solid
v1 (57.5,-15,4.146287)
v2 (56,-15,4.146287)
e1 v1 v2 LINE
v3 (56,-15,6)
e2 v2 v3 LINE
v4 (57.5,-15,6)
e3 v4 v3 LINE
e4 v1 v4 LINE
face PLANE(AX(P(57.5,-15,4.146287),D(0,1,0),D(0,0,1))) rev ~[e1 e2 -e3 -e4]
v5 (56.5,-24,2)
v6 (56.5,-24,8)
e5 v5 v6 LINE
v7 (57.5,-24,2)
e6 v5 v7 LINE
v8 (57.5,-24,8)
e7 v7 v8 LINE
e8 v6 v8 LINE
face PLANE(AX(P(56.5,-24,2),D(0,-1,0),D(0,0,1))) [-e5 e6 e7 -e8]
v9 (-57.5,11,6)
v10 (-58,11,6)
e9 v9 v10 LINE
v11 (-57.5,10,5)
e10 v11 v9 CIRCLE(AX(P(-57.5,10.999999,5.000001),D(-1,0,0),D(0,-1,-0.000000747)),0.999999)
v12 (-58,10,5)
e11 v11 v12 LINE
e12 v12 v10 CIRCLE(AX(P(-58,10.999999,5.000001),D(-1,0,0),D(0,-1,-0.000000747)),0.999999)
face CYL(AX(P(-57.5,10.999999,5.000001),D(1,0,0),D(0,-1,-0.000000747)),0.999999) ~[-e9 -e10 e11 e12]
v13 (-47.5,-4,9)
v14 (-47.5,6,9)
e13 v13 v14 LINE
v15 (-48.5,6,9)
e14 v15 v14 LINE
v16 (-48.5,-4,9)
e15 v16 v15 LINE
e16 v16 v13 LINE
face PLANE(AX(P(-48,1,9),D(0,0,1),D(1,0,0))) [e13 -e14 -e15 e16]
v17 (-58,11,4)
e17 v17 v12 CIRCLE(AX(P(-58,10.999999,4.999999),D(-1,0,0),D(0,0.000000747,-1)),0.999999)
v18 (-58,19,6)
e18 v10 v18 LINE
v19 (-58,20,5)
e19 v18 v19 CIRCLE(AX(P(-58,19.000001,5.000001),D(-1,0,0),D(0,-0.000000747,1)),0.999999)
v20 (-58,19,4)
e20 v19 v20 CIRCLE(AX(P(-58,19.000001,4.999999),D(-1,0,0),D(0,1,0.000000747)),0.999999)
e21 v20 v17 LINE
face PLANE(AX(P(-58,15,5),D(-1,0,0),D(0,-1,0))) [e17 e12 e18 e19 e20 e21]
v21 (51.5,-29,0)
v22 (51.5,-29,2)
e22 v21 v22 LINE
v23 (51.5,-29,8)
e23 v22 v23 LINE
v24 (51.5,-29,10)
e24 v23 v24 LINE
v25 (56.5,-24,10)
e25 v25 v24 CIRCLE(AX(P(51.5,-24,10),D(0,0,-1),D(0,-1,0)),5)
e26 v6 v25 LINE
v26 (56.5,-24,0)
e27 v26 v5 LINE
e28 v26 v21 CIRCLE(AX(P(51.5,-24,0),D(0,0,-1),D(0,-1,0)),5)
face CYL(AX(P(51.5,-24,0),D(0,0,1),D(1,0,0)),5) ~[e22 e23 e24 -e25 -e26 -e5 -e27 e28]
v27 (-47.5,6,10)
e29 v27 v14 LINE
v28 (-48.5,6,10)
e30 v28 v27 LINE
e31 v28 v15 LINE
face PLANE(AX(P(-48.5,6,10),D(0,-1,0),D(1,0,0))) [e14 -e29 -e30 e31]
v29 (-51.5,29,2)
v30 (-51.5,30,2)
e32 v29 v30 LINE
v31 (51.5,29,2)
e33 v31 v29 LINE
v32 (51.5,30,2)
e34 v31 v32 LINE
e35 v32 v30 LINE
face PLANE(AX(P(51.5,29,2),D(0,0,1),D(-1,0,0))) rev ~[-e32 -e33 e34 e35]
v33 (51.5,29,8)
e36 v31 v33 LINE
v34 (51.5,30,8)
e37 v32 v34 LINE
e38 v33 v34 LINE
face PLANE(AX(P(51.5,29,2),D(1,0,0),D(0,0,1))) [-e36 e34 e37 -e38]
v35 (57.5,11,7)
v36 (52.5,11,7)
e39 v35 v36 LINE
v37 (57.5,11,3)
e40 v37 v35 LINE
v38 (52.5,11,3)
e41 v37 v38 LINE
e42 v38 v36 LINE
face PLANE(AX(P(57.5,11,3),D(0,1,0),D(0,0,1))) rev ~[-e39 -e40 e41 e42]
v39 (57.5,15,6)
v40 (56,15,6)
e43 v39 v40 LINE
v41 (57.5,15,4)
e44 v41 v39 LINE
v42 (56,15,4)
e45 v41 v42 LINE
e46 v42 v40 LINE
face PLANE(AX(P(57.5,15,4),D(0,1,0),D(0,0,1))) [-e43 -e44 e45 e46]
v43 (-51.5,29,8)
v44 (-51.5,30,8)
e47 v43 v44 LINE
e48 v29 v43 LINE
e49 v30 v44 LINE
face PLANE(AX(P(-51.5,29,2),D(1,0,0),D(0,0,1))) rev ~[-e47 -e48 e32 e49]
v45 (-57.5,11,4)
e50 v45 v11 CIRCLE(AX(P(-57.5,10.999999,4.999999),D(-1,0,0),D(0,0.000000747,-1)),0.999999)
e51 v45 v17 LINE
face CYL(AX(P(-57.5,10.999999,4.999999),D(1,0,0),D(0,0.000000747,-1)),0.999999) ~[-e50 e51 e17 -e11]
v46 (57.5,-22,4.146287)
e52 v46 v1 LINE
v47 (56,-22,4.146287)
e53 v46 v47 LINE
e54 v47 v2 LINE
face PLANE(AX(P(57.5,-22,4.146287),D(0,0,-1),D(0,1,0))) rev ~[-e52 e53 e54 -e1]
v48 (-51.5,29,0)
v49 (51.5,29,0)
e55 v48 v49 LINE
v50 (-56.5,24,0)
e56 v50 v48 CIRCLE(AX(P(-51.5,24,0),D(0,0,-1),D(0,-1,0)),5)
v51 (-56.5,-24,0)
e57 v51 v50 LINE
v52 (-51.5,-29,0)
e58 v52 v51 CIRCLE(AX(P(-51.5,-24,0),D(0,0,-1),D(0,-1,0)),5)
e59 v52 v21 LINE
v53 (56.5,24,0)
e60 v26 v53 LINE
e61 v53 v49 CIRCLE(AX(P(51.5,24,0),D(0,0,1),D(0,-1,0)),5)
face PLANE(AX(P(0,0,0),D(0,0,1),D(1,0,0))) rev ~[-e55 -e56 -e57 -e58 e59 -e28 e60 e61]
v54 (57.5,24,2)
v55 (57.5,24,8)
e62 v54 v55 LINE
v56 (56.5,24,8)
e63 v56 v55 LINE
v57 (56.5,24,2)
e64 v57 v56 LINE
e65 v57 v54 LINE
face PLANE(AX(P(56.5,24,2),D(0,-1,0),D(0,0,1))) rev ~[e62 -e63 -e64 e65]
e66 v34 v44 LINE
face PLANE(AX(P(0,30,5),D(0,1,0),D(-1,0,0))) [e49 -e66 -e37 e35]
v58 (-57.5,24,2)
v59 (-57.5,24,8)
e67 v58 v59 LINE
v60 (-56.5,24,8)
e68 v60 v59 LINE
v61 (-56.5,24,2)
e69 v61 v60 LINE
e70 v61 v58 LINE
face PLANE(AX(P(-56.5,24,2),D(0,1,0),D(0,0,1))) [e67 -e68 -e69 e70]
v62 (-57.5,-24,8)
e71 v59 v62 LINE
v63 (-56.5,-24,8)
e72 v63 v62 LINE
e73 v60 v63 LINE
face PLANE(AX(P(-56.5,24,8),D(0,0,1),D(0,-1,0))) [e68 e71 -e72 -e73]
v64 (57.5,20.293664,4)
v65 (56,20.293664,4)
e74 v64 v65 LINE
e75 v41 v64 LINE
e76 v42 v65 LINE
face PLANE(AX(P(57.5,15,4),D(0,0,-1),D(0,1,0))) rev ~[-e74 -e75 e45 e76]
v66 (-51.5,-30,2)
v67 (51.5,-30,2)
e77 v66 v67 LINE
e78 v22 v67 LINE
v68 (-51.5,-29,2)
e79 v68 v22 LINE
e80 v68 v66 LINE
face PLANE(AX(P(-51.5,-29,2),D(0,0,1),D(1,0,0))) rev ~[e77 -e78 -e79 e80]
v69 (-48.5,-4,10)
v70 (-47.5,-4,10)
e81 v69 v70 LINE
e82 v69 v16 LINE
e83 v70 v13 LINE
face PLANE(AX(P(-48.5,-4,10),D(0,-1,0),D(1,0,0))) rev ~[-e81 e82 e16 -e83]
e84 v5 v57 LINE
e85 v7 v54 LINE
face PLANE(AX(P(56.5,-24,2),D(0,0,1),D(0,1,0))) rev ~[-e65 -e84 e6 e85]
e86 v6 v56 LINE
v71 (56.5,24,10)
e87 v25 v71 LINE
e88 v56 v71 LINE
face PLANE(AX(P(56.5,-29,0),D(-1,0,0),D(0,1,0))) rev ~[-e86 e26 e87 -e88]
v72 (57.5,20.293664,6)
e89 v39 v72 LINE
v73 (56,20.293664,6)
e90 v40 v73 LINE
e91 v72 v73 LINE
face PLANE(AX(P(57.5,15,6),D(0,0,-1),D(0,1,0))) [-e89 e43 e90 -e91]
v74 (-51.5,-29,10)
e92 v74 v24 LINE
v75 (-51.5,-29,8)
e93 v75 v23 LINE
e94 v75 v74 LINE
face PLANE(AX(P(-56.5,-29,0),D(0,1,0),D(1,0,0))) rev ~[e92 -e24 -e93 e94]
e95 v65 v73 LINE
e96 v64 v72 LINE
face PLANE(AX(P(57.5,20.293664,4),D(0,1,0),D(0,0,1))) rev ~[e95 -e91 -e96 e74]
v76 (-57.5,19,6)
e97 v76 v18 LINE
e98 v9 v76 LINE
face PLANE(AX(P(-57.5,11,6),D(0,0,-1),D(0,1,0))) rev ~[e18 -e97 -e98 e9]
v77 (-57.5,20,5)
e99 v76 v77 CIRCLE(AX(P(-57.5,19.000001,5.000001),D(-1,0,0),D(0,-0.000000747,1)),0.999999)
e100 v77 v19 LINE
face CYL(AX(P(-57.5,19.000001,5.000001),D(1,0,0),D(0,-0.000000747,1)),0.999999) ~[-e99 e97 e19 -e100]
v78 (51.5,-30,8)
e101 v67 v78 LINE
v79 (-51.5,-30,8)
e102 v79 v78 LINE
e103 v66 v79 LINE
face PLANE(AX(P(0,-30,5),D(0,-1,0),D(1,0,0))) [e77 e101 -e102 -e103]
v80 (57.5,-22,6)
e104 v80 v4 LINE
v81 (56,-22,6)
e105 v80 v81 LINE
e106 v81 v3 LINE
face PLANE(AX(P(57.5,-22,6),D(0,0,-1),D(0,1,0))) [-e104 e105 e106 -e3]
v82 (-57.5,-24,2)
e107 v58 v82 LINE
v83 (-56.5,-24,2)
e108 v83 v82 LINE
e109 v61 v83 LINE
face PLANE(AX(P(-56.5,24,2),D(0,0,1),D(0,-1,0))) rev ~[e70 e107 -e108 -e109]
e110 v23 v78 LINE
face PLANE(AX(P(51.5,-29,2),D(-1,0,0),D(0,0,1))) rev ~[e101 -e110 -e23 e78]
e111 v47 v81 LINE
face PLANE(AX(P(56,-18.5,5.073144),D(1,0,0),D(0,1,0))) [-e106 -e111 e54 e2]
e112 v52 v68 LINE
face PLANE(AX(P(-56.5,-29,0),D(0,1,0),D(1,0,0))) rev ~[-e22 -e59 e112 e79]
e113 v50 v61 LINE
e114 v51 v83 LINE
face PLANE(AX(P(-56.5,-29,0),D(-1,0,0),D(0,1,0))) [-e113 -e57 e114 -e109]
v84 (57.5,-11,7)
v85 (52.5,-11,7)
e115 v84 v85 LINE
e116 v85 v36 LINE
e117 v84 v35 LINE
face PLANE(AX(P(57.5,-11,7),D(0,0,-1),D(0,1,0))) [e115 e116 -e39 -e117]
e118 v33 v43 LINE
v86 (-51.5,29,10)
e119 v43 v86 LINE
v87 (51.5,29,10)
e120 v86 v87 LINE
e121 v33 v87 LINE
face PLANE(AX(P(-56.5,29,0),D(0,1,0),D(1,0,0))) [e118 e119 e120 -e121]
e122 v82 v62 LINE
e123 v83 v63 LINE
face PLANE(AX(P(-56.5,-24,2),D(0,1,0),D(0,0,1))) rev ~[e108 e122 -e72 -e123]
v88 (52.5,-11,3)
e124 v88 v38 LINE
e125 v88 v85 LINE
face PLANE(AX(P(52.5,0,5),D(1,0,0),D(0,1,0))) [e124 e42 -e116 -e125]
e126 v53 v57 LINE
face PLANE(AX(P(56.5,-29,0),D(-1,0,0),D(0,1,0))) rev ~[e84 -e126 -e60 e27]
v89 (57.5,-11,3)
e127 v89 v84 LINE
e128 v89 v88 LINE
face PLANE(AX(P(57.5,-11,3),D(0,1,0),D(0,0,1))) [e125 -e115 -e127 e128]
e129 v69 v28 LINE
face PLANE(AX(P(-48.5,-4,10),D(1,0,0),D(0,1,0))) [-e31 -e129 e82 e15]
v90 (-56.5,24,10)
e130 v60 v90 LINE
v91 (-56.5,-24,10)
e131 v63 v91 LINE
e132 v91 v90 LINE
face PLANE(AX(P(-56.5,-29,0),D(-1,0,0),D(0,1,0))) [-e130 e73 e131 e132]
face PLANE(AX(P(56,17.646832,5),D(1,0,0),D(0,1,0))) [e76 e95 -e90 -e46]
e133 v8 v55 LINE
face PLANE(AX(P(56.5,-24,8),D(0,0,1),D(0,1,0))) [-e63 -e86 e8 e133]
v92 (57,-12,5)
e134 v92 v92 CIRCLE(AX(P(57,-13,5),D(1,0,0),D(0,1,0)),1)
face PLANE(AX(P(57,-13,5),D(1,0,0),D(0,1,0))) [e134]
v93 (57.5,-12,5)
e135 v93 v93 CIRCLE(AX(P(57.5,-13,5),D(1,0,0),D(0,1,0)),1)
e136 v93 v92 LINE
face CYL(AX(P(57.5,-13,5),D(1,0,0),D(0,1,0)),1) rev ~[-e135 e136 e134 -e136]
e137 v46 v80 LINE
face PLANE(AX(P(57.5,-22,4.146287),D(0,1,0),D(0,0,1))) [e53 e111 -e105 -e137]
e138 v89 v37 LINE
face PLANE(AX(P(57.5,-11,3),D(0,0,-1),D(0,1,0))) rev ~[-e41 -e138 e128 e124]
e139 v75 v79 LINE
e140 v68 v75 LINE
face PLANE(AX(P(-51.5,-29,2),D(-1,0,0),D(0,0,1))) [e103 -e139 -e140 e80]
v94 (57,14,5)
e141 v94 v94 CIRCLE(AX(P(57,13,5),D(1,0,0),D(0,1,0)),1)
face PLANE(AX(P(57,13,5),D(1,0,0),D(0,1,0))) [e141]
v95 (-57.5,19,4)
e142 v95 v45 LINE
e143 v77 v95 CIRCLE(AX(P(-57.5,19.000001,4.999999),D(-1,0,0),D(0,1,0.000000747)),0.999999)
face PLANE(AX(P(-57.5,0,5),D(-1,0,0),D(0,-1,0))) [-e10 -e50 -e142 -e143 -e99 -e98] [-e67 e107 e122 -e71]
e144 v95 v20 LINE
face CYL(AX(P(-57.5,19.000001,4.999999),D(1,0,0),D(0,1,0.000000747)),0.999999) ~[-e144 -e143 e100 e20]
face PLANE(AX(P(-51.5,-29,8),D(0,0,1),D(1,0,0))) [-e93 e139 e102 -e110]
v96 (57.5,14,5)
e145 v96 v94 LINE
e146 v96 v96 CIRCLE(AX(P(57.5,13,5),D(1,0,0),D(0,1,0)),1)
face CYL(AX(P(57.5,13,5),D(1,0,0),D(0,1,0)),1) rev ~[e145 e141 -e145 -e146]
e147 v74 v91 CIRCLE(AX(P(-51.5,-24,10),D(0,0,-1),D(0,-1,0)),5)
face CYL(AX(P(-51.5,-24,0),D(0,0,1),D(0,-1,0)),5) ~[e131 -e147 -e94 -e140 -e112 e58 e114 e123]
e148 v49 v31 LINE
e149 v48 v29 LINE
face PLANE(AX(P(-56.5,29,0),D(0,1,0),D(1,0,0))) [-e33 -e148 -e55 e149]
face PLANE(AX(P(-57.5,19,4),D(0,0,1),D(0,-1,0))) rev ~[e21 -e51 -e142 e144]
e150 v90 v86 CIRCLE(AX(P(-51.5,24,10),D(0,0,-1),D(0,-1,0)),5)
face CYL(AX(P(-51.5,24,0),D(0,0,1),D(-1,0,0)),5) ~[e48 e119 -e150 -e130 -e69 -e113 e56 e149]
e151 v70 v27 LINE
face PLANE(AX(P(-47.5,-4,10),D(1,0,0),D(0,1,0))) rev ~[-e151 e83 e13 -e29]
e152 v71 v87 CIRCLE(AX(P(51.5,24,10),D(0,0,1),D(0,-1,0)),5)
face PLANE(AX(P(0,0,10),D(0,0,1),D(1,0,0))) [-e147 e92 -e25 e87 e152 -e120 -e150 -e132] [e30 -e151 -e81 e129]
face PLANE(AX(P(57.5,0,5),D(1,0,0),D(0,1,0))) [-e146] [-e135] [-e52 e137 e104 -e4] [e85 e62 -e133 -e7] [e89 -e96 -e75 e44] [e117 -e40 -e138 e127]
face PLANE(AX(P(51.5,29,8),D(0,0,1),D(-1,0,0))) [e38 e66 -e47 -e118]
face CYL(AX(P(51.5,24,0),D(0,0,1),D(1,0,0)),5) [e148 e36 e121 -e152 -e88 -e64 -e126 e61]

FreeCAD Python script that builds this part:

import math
import FreeCAD as App
import Part
import Sketcher


def edges_at(feature, points):
    """Names of the edges that pass closest to the given points."""
    edges = feature.Shape.Edges
    near = lambda p: min(range(len(edges)), key=lambda i: edges[i].distToShape(Part.Vertex(*p))[0])
    return sorted({f"Edge{near(p) + 1}" for p in points})

doc = App.newDocument("Part")
params = doc.addObject("Spreadsheet::Sheet", "Params")
for row, (alias, value) in enumerate([
    ("sketch1_width", "113 mm"),
    ("sketch1_height", "58 mm"),
    ("pad1_length", "10 mm"),
    ("fillet_radius", "5 mm"),
    ("fillet2_radius", "5 mm"),
    ("fillet3_radius", "5 mm"),
    ("fillet4_radius", "5 mm"),
    ("sketch2_width", "1 mm"),
    ("sketch2_height", "10 mm"),
    ("pocket1_length", "1 mm"),
    ("sketch3_width", "48 mm"),
    ("sketch3_height", "6 mm"),
    ("pad2_length", "1 mm"),
    ("sketch4_width", "103 mm"),
    ("sketch4_height", "6 mm"),
    ("pad3_length", "1 mm"),
    ("sketch5_width", "48 mm"),
    ("sketch5_height", "6 mm"),
    ("pad4_length", "1 mm"),
    ("sketch6_width", "103 mm"),
    ("sketch6_height", "6 mm"),
    ("pad5_length", "1 mm"),
    ("sketch7_width", "22 mm"),
    ("sketch7_height", "4 mm"),
    ("pocket2_length", "5 mm"),
    ("sketch8_diameter", "2 mm"),
    ("pad6_length", "0.5 mm"),
    ("sketch9_diameter", "2 mm"),
    ("pocket3_length", "0.5 mm"),
    ("sketch10_diameter", "2 mm"),
    ("pocket4_length", "0.5 mm"),
    ("sketch11_diameter", "2 mm"),
    ("pocket5_length", "0.5 mm"),
    ("sketch12_height", "2 mm"),
    ("pocket6_length", "1.5 mm"),
    ("sketch13_width", "7 mm"),
    ("pocket7_length", "1.5 mm"),
    ("sketch14_radius", "0.999999 mm"),
    ("sketch14_width", "8 mm"),
    ("pad7_length", "0.5 mm"),
    ("sketch15_diameter", "5 mm"),
    ("pad8_length", "5 mm"),
    ("sketch16_diameter", "5 mm"),
    ("pocket8_length", "5 mm"),
], start=1):
    params.set(f"A{row}", alias)
    params.set(f"B{row}", "=" + value)
    params.setAlias(f"B{row}", alias)

body = doc.addObject("PartDesign::Body", "Body")

sketch1 = body.newObject("Sketcher::SketchObject", "Sketch")
sketch1.AttachmentSupport = (doc.getObject("XY_Plane"), [""])
sketch1.MapMode = "FlatFace"
sketch1.addGeometry(Part.LineSegment(App.Vector(-56, 29, 0), App.Vector(-56, -29, 0)), False)
sketch1.addGeometry(Part.LineSegment(App.Vector(-56, -29, 0), App.Vector(56, -29, 0)), False)
sketch1.addGeometry(Part.LineSegment(App.Vector(56, -29, 0), App.Vector(56, 29, 0)), False)
sketch1.addGeometry(Part.LineSegment(App.Vector(56, 29, 0), App.Vector(-56, 29, 0)), False)
sketch1.addConstraint(Sketcher.Constraint("Coincident", 0, 2, 1, 1))
sketch1.addConstraint(Sketcher.Constraint("Coincident", 1, 2, 2, 1))
sketch1.addConstraint(Sketcher.Constraint("Coincident", 2, 2, 3, 1))
sketch1.addConstraint(Sketcher.Constraint("Coincident", 3, 2, 0, 1))
sketch1.addConstraint(Sketcher.Constraint("Vertical", 0))
sketch1.addConstraint(Sketcher.Constraint("Horizontal", 1))
sketch1.addConstraint(Sketcher.Constraint("Vertical", 2))
sketch1.addConstraint(Sketcher.Constraint("Horizontal", 3))
sketch1.addConstraint(Sketcher.Constraint("Symmetric", 0, 2, 2, 2, -1, 1))
sketch1.addConstraint(Sketcher.Constraint("DistanceX", 1, 1, 1, 2, 113.0))
sketch1.addConstraint(Sketcher.Constraint("DistanceY", 0, 2, 0, 1, 58.0))
sketch1.setExpression("Constraints[9]", "Params.sketch1_width")
sketch1.setExpression("Constraints[10]", "Params.sketch1_height")
pad1 = body.newObject("PartDesign::Pad", "Pad")
pad1.Profile = sketch1
pad1.setExpression("Length", "Params.pad1_length")
doc.recompute()

fillet = body.newObject("PartDesign::Fillet", "Fillet")
fillet.Base = (pad1, edges_at(pad1, [(56.5, 29, 5)]))
fillet.setExpression("Radius", "Params.fillet_radius")
doc.recompute()

fillet2 = body.newObject("PartDesign::Fillet", "Fillet001")
fillet2.Base = (fillet, edges_at(fillet, [(56.5, -29, 5)]))
fillet2.setExpression("Radius", "Params.fillet2_radius")
doc.recompute()

fillet3 = body.newObject("PartDesign::Fillet", "Fillet002")
fillet3.Base = (fillet2, edges_at(fillet2, [(-56.5, -29, 5)]))
fillet3.setExpression("Radius", "Params.fillet3_radius")
doc.recompute()

fillet4 = body.newObject("PartDesign::Fillet", "Fillet003")
fillet4.Base = (fillet3, edges_at(fillet3, [(-56.5, 29, 5)]))
fillet4.setExpression("Radius", "Params.fillet4_radius")

sketch2 = body.newObject("Sketcher::SketchObject", "Sketch001")
sketch2.AttachmentSupport = (doc.getObject("XY_Plane"), [""])
sketch2.MapMode = "FlatFace"
sketch2.AttachmentOffset = App.Placement(App.Vector(0, 0, 10), App.Rotation())
sketch2.addGeometry(Part.LineSegment(App.Vector(-48.5, 6, 0), App.Vector(-48.5, -4, 0)), False)
sketch2.addGeometry(Part.LineSegment(App.Vector(-48.5, -4, 0), App.Vector(-47.5, -4, 0)), False)
sketch2.addGeometry(Part.LineSegment(App.Vector(-47.5, -4, 0), App.Vector(-47.5, 6, 0)), False)
sketch2.addGeometry(Part.LineSegment(App.Vector(-47.5, 6, 0), App.Vector(-48.5, 6, 0)), False)
sketch2.addConstraint(Sketcher.Constraint("Coincident", 0, 2, 1, 1))
sketch2.addConstraint(Sketcher.Constraint("Coincident", 1, 2, 2, 1))
sketch2.addConstraint(Sketcher.Constraint("Coincident", 2, 2, 3, 1))
sketch2.addConstraint(Sketcher.Constraint("Coincident", 3, 2, 0, 1))
sketch2.addConstraint(Sketcher.Constraint("Vertical", 0))
sketch2.addConstraint(Sketcher.Constraint("Horizontal", 1))
sketch2.addConstraint(Sketcher.Constraint("Vertical", 2))
sketch2.addConstraint(Sketcher.Constraint("Horizontal", 3))
sketch2.addConstraint(Sketcher.Constraint("DistanceX", 1, 1, 1, 2, 1.0))
sketch2.addConstraint(Sketcher.Constraint("DistanceY", 0, 2, 0, 1, 10.0))
sketch2.addConstraint(Sketcher.Constraint("DistanceY", 0, 2, -1, 1, 4.0))
sketch2.addConstraint(Sketcher.Constraint("DistanceX", 0, 2, -1, 1, 48.5))
sketch2.setExpression("Constraints[8]", "Params.sketch2_width")
sketch2.setExpression("Constraints[9]", "Params.sketch2_height")
pocket1 = body.newObject("PartDesign::Pocket", "Pocket")
pocket1.Profile = sketch2
pocket1.setExpression("Length", "Params.pocket1_length")

sketch3 = body.newObject("Sketcher::SketchObject", "Sketch002")
sketch3.AttachmentSupport = (doc.getObject("YZ_Plane"), [""])
sketch3.MapMode = "FlatFace"
sketch3.AttachmentOffset = App.Placement(App.Vector(0, 0, -56.5), App.Rotation())
sketch3.addGeometry(Part.LineSegment(App.Vector(24, 8, 0), App.Vector(24, 2, 0)), False)
sketch3.addGeometry(Part.LineSegment(App.Vector(24, 2, 0), App.Vector(-24, 2, 0)), False)
sketch3.addGeometry(Part.LineSegment(App.Vector(-24, 2, 0), App.Vector(-24, 8, 0)), False)
sketch3.addGeometry(Part.LineSegment(App.Vector(-24, 8, 0), App.Vector(24, 8, 0)), False)
sketch3.addConstraint(Sketcher.Constraint("Coincident", 0, 2, 1, 1))
sketch3.addConstraint(Sketcher.Constraint("Coincident", 1, 2, 2, 1))
sketch3.addConstraint(Sketcher.Constraint("Coincident", 2, 2, 3, 1))
sketch3.addConstraint(Sketcher.Constraint("Coincident", 3, 2, 0, 1))
sketch3.addConstraint(Sketcher.Constraint("Vertical", 0))
sketch3.addConstraint(Sketcher.Constraint("Horizontal", 1))
sketch3.addConstraint(Sketcher.Constraint("Vertical", 2))
sketch3.addConstraint(Sketcher.Constraint("Horizontal", 3))
sketch3.addConstraint(Sketcher.Constraint("DistanceX", 1, 2, 1, 1, 48.0))
sketch3.addConstraint(Sketcher.Constraint("DistanceY", 0, 2, 0, 1, 6.0))
sketch3.addConstraint(Sketcher.Constraint("DistanceX", -1, 1, 0, 2, 24.0))
sketch3.addConstraint(Sketcher.Constraint("DistanceY", -1, 1, 0, 2, 2.0))
sketch3.setExpression("Constraints[8]", "Params.sketch3_width")
sketch3.setExpression("Constraints[9]", "Params.sketch3_height")
pad2 = body.newObject("PartDesign::Pad", "Pad001")
pad2.Profile = sketch3
pad2.setExpression("Length", "Params.pad2_length")
pad2.Reversed = True

sketch4 = body.newObject("Sketcher::SketchObject", "Sketch003")
sketch4.AttachmentSupport = (doc.getObject("XZ_Plane"), [""])
sketch4.MapMode = "FlatFace"
sketch4.AttachmentOffset = App.Placement(App.Vector(0, 0, -29), App.Rotation())
sketch4.addGeometry(Part.LineSegment(App.Vector(52, 8, 0), App.Vector(52, 2, 0)), False)
sketch4.addGeometry(Part.LineSegment(App.Vector(52, 2, 0), App.Vector(-52, 2, 0)), False)
sketch4.addGeometry(Part.LineSegment(App.Vector(-52, 2, 0), App.Vector(-52, 8, 0)), False)
sketch4.addGeometry(Part.LineSegment(App.Vector(-52, 8, 0), App.Vector(52, 8, 0)), False)
sketch4.addConstraint(Sketcher.Constraint("Coincident", 0, 2, 1, 1))
sketch4.addConstraint(Sketcher.Constraint("Coincident", 1, 2, 2, 1))
sketch4.addConstraint(Sketcher.Constraint("Coincident", 2, 2, 3, 1))
sketch4.addConstraint(Sketcher.Constraint("Coincident", 3, 2, 0, 1))
sketch4.addConstraint(Sketcher.Constraint("Vertical", 0))
sketch4.addConstraint(Sketcher.Constraint("Horizontal", 1))
sketch4.addConstraint(Sketcher.Constraint("Vertical", 2))
sketch4.addConstraint(Sketcher.Constraint("Horizontal", 3))
sketch4.addConstraint(Sketcher.Constraint("DistanceX", 1, 2, 1, 1, 103.0))
sketch4.addConstraint(Sketcher.Constraint("DistanceY", 0, 2, 0, 1, 6.0))
sketch4.addConstraint(Sketcher.Constraint("DistanceY", -1, 1, 0, 2, 2.0))
sketch4.addConstraint(Sketcher.Constraint("DistanceX", -1, 1, 0, 2, 51.5))
sketch4.setExpression("Constraints[8]", "Params.sketch4_width")
sketch4.setExpression("Constraints[9]", "Params.sketch4_height")
pad3 = body.newObject("PartDesign::Pad", "Pad002")
pad3.Profile = sketch4
pad3.setExpression("Length", "Params.pad3_length")
pad3.Reversed = True

sketch5 = body.newObject("Sketcher::SketchObject", "Sketch004")
sketch5.AttachmentSupport = (doc.getObject("YZ_Plane"), [""])
sketch5.MapMode = "FlatFace"
sketch5.AttachmentOffset = App.Placement(App.Vector(0, 0, 56.5), App.Rotation())
sketch5.addGeometry(Part.LineSegment(App.Vector(-24, 8, 0), App.Vector(-24, 2, 0)), False)
sketch5.addGeometry(Part.LineSegment(App.Vector(-24, 2, 0), App.Vector(24, 2, 0)), False)
sketch5.addGeometry(Part.LineSegment(App.Vector(24, 2, 0), App.Vector(24, 8, 0)), False)
sketch5.addGeometry(Part.LineSegment(App.Vector(24, 8, 0), App.Vector(-24, 8, 0)), False)
sketch5.addConstraint(Sketcher.Constraint("Coincident", 0, 2, 1, 1))
sketch5.addConstraint(Sketcher.Constraint("Coincident", 1, 2, 2, 1))
sketch5.addConstraint(Sketcher.Constraint("Coincident", 2, 2, 3, 1))
sketch5.addConstraint(Sketcher.Constraint("Coincident", 3, 2, 0, 1))
sketch5.addConstraint(Sketcher.Constraint("Vertical", 0))
sketch5.addConstraint(Sketcher.Constraint("Horizontal", 1))
sketch5.addConstraint(Sketcher.Constraint("Vertical", 2))
sketch5.addConstraint(Sketcher.Constraint("Horizontal", 3))
sketch5.addConstraint(Sketcher.Constraint("DistanceX", 1, 1, 1, 2, 48.0))
sketch5.addConstraint(Sketcher.Constraint("DistanceY", 0, 2, 0, 1, 6.0))
sketch5.addConstraint(Sketcher.Constraint("DistanceX", 0, 2, -1, 1, 24.0))
sketch5.addConstraint(Sketcher.Constraint("DistanceY", -1, 1, 0, 2, 2.0))
sketch5.setExpression("Constraints[8]", "Params.sketch5_width")
sketch5.setExpression("Constraints[9]", "Params.sketch5_height")
pad4 = body.newObject("PartDesign::Pad", "Pad003")
pad4.Profile = sketch5
pad4.setExpression("Length", "Params.pad4_length")

sketch6 = body.newObject("Sketcher::SketchObject", "Sketch005")
sketch6.AttachmentSupport = (doc.getObject("XZ_Plane"), [""])
sketch6.MapMode = "FlatFace"
sketch6.AttachmentOffset = App.Placement(App.Vector(0, 0, 29), App.Rotation())
sketch6.addGeometry(Part.LineSegment(App.Vector(-52, 8, 0), App.Vector(-52, 2, 0)), False)
sketch6.addGeometry(Part.LineSegment(App.Vector(-52, 2, 0), App.Vector(52, 2, 0)), False)
sketch6.addGeometry(Part.LineSegment(App.Vector(52, 2, 0), App.Vector(52, 8, 0)), False)
sketch6.addGeometry(Part.LineSegment(App.Vector(52, 8, 0), App.Vector(-52, 8, 0)), False)
sketch6.addConstraint(Sketcher.Constraint("Coincident", 0, 2, 1, 1))
sketch6.addConstraint(Sketcher.Constraint("Coincident", 1, 2, 2, 1))
sketch6.addConstraint(Sketcher.Constraint("Coincident", 2, 2, 3, 1))
sketch6.addConstraint(Sketcher.Constraint("Coincident", 3, 2, 0, 1))
sketch6.addConstraint(Sketcher.Constraint("Vertical", 0))
sketch6.addConstraint(Sketcher.Constraint("Horizontal", 1))
sketch6.addConstraint(Sketcher.Constraint("Vertical", 2))
sketch6.addConstraint(Sketcher.Constraint("Horizontal", 3))
sketch6.addConstraint(Sketcher.Constraint("DistanceX", 1, 1, 1, 2, 103.0))
sketch6.addConstraint(Sketcher.Constraint("DistanceY", 0, 2, 0, 1, 6.0))
sketch6.addConstraint(Sketcher.Constraint("DistanceY", -1, 1, 0, 2, 2.0))
sketch6.addConstraint(Sketcher.Constraint("DistanceX", 0, 2, -1, 1, 51.5))
sketch6.setExpression("Constraints[8]", "Params.sketch6_width")
sketch6.setExpression("Constraints[9]", "Params.sketch6_height")
pad5 = body.newObject("PartDesign::Pad", "Pad004")
pad5.Profile = sketch6
pad5.setExpression("Length", "Params.pad5_length")

sketch7 = body.newObject("Sketcher::SketchObject", "Sketch006")
sketch7.AttachmentSupport = (doc.getObject("YZ_Plane"), [""])
sketch7.MapMode = "FlatFace"
sketch7.AttachmentOffset = App.Placement(App.Vector(0, 0, 57.5), App.Rotation())
sketch7.addGeometry(Part.LineSegment(App.Vector(-11, 7, 0), App.Vector(-11, 3, 0)), False)
sketch7.addGeometry(Part.LineSegment(App.Vector(-11, 3, 0), App.Vector(11, 3, 0)), False)
sketch7.addGeometry(Part.LineSegment(App.Vector(11, 3, 0), App.Vector(11, 7, 0)), False)
sketch7.addGeometry(Part.LineSegment(App.Vector(11, 7, 0), App.Vector(-11, 7, 0)), False)
sketch7.addConstraint(Sketcher.Constraint("Coincident", 0, 2, 1, 1))
sketch7.addConstraint(Sketcher.Constraint("Coincident", 1, 2, 2, 1))
sketch7.addConstraint(Sketcher.Constraint("Coincident", 2, 2, 3, 1))
sketch7.addConstraint(Sketcher.Constraint("Coincident", 3, 2, 0, 1))
sketch7.addConstraint(Sketcher.Constraint("Vertical", 0))
sketch7.addConstraint(Sketcher.Constraint("Horizontal", 1))
sketch7.addConstraint(Sketcher.Constraint("Vertical", 2))
sketch7.addConstraint(Sketcher.Constraint("Horizontal", 3))
sketch7.addConstraint(Sketcher.Constraint("DistanceX", 1, 1, 1, 2, 22.0))
sketch7.addConstraint(Sketcher.Constraint("DistanceY", 0, 2, 0, 1, 4.0))
sketch7.addConstraint(Sketcher.Constraint("DistanceX", 0, 2, -1, 1, 11.0))
sketch7.addConstraint(Sketcher.Constraint("DistanceY", -1, 1, 0, 2, 3.0))
sketch7.setExpression("Constraints[8]", "Params.sketch7_width")
sketch7.setExpression("Constraints[9]", "Params.sketch7_height")
pocket2 = body.newObject("PartDesign::Pocket", "Pocket001")
pocket2.Profile = sketch7
pocket2.setExpression("Length", "Params.pocket2_length")

sketch8 = body.newObject("Sketcher::SketchObject", "Sketch007")
sketch8.AttachmentSupport = (doc.getObject("YZ_Plane"), [""])
sketch8.MapMode = "FlatFace"
sketch8.AttachmentOffset = App.Placement(App.Vector(0, 0, 57.5), App.Rotation())
sketch8.addGeometry(Part.Circle(App.Vector(13, 5, 0), App.Vector(0, 0, 1), 1), False)
sketch8.addConstraint(Sketcher.Constraint("Diameter", 0, 2.0))
sketch8.addConstraint(Sketcher.Constraint("DistanceX", -1, 1, 0, 3, 13.0))
sketch8.addConstraint(Sketcher.Constraint("DistanceY", -1, 1, 0, 3, 5.0))
sketch8.setExpression("Constraints[0]", "Params.sketch8_diameter")
pad6 = body.newObject("PartDesign::Pad", "Pad005")
pad6.Profile = sketch8
pad6.setExpression("Length", "Params.pad6_length")

sketch9 = body.newObject("Sketcher::SketchObject", "Sketch008")
sketch9.AttachmentSupport = (doc.getObject("YZ_Plane"), [""])
sketch9.MapMode = "FlatFace"
sketch9.AttachmentOffset = App.Placement(App.Vector(0, 0, 58), App.Rotation())
sketch9.addGeometry(Part.Circle(App.Vector(13, 5, 0), App.Vector(0, 0, 1), 1), False)
sketch9.addConstraint(Sketcher.Constraint("Diameter", 0, 2.0))
sketch9.addConstraint(Sketcher.Constraint("DistanceX", -1, 1, 0, 3, 13.0))
sketch9.addConstraint(Sketcher.Constraint("DistanceY", -1, 1, 0, 3, 5.0))
sketch9.setExpression("Constraints[0]", "Params.sketch9_diameter")
pocket3 = body.newObject("PartDesign::Pocket", "Pocket002")
pocket3.Profile = sketch9
pocket3.setExpression("Length", "Params.pocket3_length")

sketch10 = body.newObject("Sketcher::SketchObject", "Sketch009")
sketch10.AttachmentSupport = (doc.getObject("YZ_Plane"), [""])
sketch10.MapMode = "FlatFace"
sketch10.AttachmentOffset = App.Placement(App.Vector(0, 0, 57.5), App.Rotation())
sketch10.addGeometry(Part.Circle(App.Vector(13, 5, 0), App.Vector(0, 0, 1), 1), False)
sketch10.addConstraint(Sketcher.Constraint("Diameter", 0, 2.0))
sketch10.addConstraint(Sketcher.Constraint("DistanceX", -1, 1, 0, 3, 13.0))
sketch10.addConstraint(Sketcher.Constraint("DistanceY", -1, 1, 0, 3, 5.0))
sketch10.setExpression("Constraints[0]", "Params.sketch10_diameter")
pocket4 = body.newObject("PartDesign::Pocket", "Pocket003")
pocket4.Profile = sketch10
pocket4.setExpression("Length", "Params.pocket4_length")

sketch11 = body.newObject("Sketcher::SketchObject", "Sketch010")
sketch11.AttachmentSupport = (doc.getObject("YZ_Plane"), [""])
sketch11.MapMode = "FlatFace"
sketch11.AttachmentOffset = App.Placement(App.Vector(0, 0, 57.5), App.Rotation())
sketch11.addGeometry(Part.Circle(App.Vector(-13, 5, 0), App.Vector(0, 0, 1), 1), False)
sketch11.addConstraint(Sketcher.Constraint("Diameter", 0, 2.0))
sketch11.addConstraint(Sketcher.Constraint("DistanceX", 0, 3, -1, 1, 13.0))
sketch11.addConstraint(Sketcher.Constraint("DistanceY", -1, 1, 0, 3, 5.0))
sketch11.setExpression("Constraints[0]", "Params.sketch11_diameter")
pocket5 = body.newObject("PartDesign::Pocket", "Pocket004")
pocket5.Profile = sketch11
pocket5.setExpression("Length", "Params.pocket5_length")

sketch12 = body.newObject("Sketcher::SketchObject", "Sketch011")
sketch12.AttachmentSupport = (doc.getObject("YZ_Plane"), [""])
sketch12.MapMode = "FlatFace"
sketch12.AttachmentOffset = App.Placement(App.Vector(0, 0, 57.5), App.Rotation())
sketch12.addGeometry(Part.LineSegment(App.Vector(15, 6, 0), App.Vector(15, 4, 0)), False)
sketch12.addGeometry(Part.LineSegment(App.Vector(15, 4, 0), App.Vector(20.3, 4, 0)), False)
sketch12.addGeometry(Part.LineSegment(App.Vector(20.3, 4, 0), App.Vector(20.3, 6, 0)), False)
sketch12.addGeometry(Part.LineSegment(App.Vector(20.3, 6, 0), App.Vector(15, 6, 0)), False)
sketch12.addConstraint(Sketcher.Constraint("Coincident", 0, 2, 1, 1))
sketch12.addConstraint(Sketcher.Constraint("Coincident", 1, 2, 2, 1))
sketch12.addConstraint(Sketcher.Constraint("Coincident", 2, 2, 3, 1))
sketch12.addConstraint(Sketcher.Constraint("Coincident", 3, 2, 0, 1))
sketch12.addConstraint(Sketcher.Constraint("Vertical", 0))
sketch12.addConstraint(Sketcher.Constraint("Horizontal", 1))
sketch12.addConstraint(Sketcher.Constraint("Vertical", 2))
sketch12.addConstraint(Sketcher.Constraint("Horizontal", 3))
sketch12.addConstraint(Sketcher.Constraint("DistanceY", 0, 2, 0, 1, 2.0))
sketch12.addConstraint(Sketcher.Constraint("DistanceX", -1, 1, 0, 2, 15.0))
sketch12.addConstraint(Sketcher.Constraint("DistanceY", -1, 1, 0, 2, 4.0))
sketch12.addConstraint(Sketcher.Constraint("DistanceX", 1, 1, 1, 2, 5.293664))
sketch12.setExpression("Constraints[8]", "Params.sketch12_height")
pocket6 = body.newObject("PartDesign::Pocket", "Pocket005")
pocket6.Profile = sketch12
pocket6.setExpression("Length", "Params.pocket6_length")

sketch13 = body.newObject("Sketcher::SketchObject", "Sketch012")
sketch13.AttachmentSupport = (doc.getObject("YZ_Plane"), [""])
sketch13.MapMode = "FlatFace"
sketch13.AttachmentOffset = App.Placement(App.Vector(0, 0, 57.5), App.Rotation())
sketch13.addGeometry(Part.LineSegment(App.Vector(-22, 6, 0), App.Vector(-22, 4.1, 0)), False)
sketch13.addGeometry(Part.LineSegment(App.Vector(-22, 4.1, 0), App.Vector(-15, 4.1, 0)), False)
sketch13.addGeometry(Part.LineSegment(App.Vector(-15, 4.1, 0), App.Vector(-15, 6, 0)), False)
sketch13.addGeometry(Part.LineSegment(App.Vector(-15, 6, 0), App.Vector(-22, 6, 0)), False)
sketch13.addConstraint(Sketcher.Constraint("Coincident", 0, 2, 1, 1))
sketch13.addConstraint(Sketcher.Constraint("Coincident", 1, 2, 2, 1))
sketch13.addConstraint(Sketcher.Constraint("Coincident", 2, 2, 3, 1))
sketch13.addConstraint(Sketcher.Constraint("Coincident", 3, 2, 0, 1))
sketch13.addConstraint(Sketcher.Constraint("Vertical", 0))
sketch13.addConstraint(Sketcher.Constraint("Horizontal", 1))
sketch13.addConstraint(Sketcher.Constraint("Vertical", 2))
sketch13.addConstraint(Sketcher.Constraint("Horizontal", 3))
sketch13.addConstraint(Sketcher.Constraint("DistanceX", 1, 1, 1, 2, 7.0))
sketch13.addConstraint(Sketcher.Constraint("DistanceX", 0, 2, -1, 1, 22.0))
sketch13.addConstraint(Sketcher.Constraint("DistanceY", -1, 1, 2, 2, 6.0))
sketch13.addConstraint(Sketcher.Constraint("DistanceY", 0, 2, 0, 1, 1.853713))
sketch13.setExpression("Constraints[8]", "Params.sketch13_width")
pocket7 = body.newObject("PartDesign::Pocket", "Pocket006")
pocket7.Profile = sketch13
pocket7.setExpression("Length", "Params.pocket7_length")

sketch14 = body.newObject("Sketcher::SketchObject", "Sketch013")
sketch14.AttachmentSupport = (doc.getObject("YZ_Plane"), [""])
sketch14.MapMode = "FlatFace"
sketch14.AttachmentOffset = App.Placement(App.Vector(0, 0, -57.5), App.Rotation())
sketch14.addGeometry(Part.LineSegment(App.Vector(19, 4, 0), App.Vector(11, 4, 0)), False)
sketch14.addGeometry(Part.ArcOfCircle(Part.Circle(App.Vector(11, 5, 0), App.Vector(0, 0, 1), 1), math.radians(180), math.radians(270)), False)
sketch14.addGeometry(Part.ArcOfCircle(Part.Circle(App.Vector(11, 5, 0), App.Vector(0, 0, 1), 1), math.radians(90), math.radians(180)), False)
sketch14.addGeometry(Part.LineSegment(App.Vector(11, 6, 0), App.Vector(19, 6, 0)), False)
sketch14.addGeometry(Part.ArcOfCircle(Part.Circle(App.Vector(19, 5, 0), App.Vector(0, 0, 1), 1), math.radians(0), math.radians(90)), False)
sketch14.addGeometry(Part.ArcOfCircle(Part.Circle(App.Vector(19, 5, 0), App.Vector(0, 0, 1), 1), math.radians(-90), math.radians(0)), False)
sketch14.addConstraint(Sketcher.Constraint("Tangent", 0, 2, 1, 2))
sketch14.addConstraint(Sketcher.Constraint("Tangent", 1, 1, 2, 2))
sketch14.addConstraint(Sketcher.Constraint("Tangent", 2, 1, 3, 1))
sketch14.addConstraint(Sketcher.Constraint("Tangent", 3, 2, 4, 2))
sketch14.addConstraint(Sketcher.Constraint("Tangent", 4, 1, 5, 2))
sketch14.addConstraint(Sketcher.Constraint("Tangent", 5, 1, 0, 1))
sketch14.addConstraint(Sketcher.Constraint("Horizontal", 0))
sketch14.addConstraint(Sketcher.Constraint("Horizontal", 3))
sketch14.addConstraint(Sketcher.Constraint("Equal", 1, 2))
sketch14.addConstraint(Sketcher.Constraint("Equal", 2, 4))
sketch14.addConstraint(Sketcher.Constraint("Horizontal", 5, 3, 1, 1))
sketch14.addConstraint(Sketcher.Constraint("Horizontal", 1, 1, 4, 1))
sketch14.addConstraint(Sketcher.Constraint("Radius", 1, 0.999999))
sketch14.addConstraint(Sketcher.Constraint("DistanceX", 0, 2, 0, 1, 8.0))
sketch14.addConstraint(Sketcher.Constraint("DistanceX", -1, 1, 1, 3, 10.999999))
sketch14.addConstraint(Sketcher.Constraint("DistanceY", -1, 1, 1, 3, 4.999999))
sketch14.setExpression("Constraints[12]", "Params.sketch14_radius")
sketch14.setExpression("Constraints[13]", "Params.sketch14_width")
pad7 = body.newObject("PartDesign::Pad", "Pad006")
pad7.Profile = sketch14
pad7.setExpression("Length", "Params.pad7_length")
pad7.Reversed = True

sketch15 = body.newObject("Sketcher::SketchObject", "Sketch014")
sketch15.AttachmentSupport = (doc.getObject("YZ_Plane"), [""])
sketch15.MapMode = "FlatFace"
sketch15.AttachmentOffset = App.Placement(App.Vector(0, 0, -57.5), App.Rotation())
sketch15.addGeometry(Part.Circle(App.Vector(-16.5, 5, 0), App.Vector(0, 0, 1), 2.5), False)
sketch15.addConstraint(Sketcher.Constraint("Diameter", 0, 5.0))
sketch15.addConstraint(Sketcher.Constraint("DistanceX", 0, 3, -1, 1, 16.500002))
sketch15.addConstraint(Sketcher.Constraint("DistanceY", -1, 1, 0, 3, 5.005926))
sketch15.setExpression("Constraints[0]", "Params.sketch15_diameter")
pad8 = body.newObject("PartDesign::Pad", "Pad007")
pad8.Profile = sketch15
pad8.setExpression("Length", "Params.pad8_length")
pad8.Reversed = True

sketch16 = body.newObject("Sketcher::SketchObject", "Sketch015")
sketch16.AttachmentSupport = (doc.getObject("YZ_Plane"), [""])
sketch16.MapMode = "FlatFace"
sketch16.AttachmentOffset = App.Placement(App.Vector(0, 0, -62.5), App.Rotation())
sketch16.addGeometry(Part.Circle(App.Vector(-16.5, 5, 0), App.Vector(0, 0, 1), 2.5), False)
sketch16.addConstraint(Sketcher.Constraint("Diameter", 0, 5.0))
sketch16.addConstraint(Sketcher.Constraint("DistanceX", 0, 3, -1, 1, 16.500002))
sketch16.addConstraint(Sketcher.Constraint("DistanceY", -1, 1, 0, 3, 5.005926))
sketch16.setExpression("Constraints[0]", "Params.sketch16_diameter")
pocket8 = body.newObject("PartDesign::Pocket", "Pocket007")
pocket8.Profile = sketch16
pocket8.setExpression("Length", "Params.pocket8_length")
pocket8.Reversed = True

doc.recompute()
